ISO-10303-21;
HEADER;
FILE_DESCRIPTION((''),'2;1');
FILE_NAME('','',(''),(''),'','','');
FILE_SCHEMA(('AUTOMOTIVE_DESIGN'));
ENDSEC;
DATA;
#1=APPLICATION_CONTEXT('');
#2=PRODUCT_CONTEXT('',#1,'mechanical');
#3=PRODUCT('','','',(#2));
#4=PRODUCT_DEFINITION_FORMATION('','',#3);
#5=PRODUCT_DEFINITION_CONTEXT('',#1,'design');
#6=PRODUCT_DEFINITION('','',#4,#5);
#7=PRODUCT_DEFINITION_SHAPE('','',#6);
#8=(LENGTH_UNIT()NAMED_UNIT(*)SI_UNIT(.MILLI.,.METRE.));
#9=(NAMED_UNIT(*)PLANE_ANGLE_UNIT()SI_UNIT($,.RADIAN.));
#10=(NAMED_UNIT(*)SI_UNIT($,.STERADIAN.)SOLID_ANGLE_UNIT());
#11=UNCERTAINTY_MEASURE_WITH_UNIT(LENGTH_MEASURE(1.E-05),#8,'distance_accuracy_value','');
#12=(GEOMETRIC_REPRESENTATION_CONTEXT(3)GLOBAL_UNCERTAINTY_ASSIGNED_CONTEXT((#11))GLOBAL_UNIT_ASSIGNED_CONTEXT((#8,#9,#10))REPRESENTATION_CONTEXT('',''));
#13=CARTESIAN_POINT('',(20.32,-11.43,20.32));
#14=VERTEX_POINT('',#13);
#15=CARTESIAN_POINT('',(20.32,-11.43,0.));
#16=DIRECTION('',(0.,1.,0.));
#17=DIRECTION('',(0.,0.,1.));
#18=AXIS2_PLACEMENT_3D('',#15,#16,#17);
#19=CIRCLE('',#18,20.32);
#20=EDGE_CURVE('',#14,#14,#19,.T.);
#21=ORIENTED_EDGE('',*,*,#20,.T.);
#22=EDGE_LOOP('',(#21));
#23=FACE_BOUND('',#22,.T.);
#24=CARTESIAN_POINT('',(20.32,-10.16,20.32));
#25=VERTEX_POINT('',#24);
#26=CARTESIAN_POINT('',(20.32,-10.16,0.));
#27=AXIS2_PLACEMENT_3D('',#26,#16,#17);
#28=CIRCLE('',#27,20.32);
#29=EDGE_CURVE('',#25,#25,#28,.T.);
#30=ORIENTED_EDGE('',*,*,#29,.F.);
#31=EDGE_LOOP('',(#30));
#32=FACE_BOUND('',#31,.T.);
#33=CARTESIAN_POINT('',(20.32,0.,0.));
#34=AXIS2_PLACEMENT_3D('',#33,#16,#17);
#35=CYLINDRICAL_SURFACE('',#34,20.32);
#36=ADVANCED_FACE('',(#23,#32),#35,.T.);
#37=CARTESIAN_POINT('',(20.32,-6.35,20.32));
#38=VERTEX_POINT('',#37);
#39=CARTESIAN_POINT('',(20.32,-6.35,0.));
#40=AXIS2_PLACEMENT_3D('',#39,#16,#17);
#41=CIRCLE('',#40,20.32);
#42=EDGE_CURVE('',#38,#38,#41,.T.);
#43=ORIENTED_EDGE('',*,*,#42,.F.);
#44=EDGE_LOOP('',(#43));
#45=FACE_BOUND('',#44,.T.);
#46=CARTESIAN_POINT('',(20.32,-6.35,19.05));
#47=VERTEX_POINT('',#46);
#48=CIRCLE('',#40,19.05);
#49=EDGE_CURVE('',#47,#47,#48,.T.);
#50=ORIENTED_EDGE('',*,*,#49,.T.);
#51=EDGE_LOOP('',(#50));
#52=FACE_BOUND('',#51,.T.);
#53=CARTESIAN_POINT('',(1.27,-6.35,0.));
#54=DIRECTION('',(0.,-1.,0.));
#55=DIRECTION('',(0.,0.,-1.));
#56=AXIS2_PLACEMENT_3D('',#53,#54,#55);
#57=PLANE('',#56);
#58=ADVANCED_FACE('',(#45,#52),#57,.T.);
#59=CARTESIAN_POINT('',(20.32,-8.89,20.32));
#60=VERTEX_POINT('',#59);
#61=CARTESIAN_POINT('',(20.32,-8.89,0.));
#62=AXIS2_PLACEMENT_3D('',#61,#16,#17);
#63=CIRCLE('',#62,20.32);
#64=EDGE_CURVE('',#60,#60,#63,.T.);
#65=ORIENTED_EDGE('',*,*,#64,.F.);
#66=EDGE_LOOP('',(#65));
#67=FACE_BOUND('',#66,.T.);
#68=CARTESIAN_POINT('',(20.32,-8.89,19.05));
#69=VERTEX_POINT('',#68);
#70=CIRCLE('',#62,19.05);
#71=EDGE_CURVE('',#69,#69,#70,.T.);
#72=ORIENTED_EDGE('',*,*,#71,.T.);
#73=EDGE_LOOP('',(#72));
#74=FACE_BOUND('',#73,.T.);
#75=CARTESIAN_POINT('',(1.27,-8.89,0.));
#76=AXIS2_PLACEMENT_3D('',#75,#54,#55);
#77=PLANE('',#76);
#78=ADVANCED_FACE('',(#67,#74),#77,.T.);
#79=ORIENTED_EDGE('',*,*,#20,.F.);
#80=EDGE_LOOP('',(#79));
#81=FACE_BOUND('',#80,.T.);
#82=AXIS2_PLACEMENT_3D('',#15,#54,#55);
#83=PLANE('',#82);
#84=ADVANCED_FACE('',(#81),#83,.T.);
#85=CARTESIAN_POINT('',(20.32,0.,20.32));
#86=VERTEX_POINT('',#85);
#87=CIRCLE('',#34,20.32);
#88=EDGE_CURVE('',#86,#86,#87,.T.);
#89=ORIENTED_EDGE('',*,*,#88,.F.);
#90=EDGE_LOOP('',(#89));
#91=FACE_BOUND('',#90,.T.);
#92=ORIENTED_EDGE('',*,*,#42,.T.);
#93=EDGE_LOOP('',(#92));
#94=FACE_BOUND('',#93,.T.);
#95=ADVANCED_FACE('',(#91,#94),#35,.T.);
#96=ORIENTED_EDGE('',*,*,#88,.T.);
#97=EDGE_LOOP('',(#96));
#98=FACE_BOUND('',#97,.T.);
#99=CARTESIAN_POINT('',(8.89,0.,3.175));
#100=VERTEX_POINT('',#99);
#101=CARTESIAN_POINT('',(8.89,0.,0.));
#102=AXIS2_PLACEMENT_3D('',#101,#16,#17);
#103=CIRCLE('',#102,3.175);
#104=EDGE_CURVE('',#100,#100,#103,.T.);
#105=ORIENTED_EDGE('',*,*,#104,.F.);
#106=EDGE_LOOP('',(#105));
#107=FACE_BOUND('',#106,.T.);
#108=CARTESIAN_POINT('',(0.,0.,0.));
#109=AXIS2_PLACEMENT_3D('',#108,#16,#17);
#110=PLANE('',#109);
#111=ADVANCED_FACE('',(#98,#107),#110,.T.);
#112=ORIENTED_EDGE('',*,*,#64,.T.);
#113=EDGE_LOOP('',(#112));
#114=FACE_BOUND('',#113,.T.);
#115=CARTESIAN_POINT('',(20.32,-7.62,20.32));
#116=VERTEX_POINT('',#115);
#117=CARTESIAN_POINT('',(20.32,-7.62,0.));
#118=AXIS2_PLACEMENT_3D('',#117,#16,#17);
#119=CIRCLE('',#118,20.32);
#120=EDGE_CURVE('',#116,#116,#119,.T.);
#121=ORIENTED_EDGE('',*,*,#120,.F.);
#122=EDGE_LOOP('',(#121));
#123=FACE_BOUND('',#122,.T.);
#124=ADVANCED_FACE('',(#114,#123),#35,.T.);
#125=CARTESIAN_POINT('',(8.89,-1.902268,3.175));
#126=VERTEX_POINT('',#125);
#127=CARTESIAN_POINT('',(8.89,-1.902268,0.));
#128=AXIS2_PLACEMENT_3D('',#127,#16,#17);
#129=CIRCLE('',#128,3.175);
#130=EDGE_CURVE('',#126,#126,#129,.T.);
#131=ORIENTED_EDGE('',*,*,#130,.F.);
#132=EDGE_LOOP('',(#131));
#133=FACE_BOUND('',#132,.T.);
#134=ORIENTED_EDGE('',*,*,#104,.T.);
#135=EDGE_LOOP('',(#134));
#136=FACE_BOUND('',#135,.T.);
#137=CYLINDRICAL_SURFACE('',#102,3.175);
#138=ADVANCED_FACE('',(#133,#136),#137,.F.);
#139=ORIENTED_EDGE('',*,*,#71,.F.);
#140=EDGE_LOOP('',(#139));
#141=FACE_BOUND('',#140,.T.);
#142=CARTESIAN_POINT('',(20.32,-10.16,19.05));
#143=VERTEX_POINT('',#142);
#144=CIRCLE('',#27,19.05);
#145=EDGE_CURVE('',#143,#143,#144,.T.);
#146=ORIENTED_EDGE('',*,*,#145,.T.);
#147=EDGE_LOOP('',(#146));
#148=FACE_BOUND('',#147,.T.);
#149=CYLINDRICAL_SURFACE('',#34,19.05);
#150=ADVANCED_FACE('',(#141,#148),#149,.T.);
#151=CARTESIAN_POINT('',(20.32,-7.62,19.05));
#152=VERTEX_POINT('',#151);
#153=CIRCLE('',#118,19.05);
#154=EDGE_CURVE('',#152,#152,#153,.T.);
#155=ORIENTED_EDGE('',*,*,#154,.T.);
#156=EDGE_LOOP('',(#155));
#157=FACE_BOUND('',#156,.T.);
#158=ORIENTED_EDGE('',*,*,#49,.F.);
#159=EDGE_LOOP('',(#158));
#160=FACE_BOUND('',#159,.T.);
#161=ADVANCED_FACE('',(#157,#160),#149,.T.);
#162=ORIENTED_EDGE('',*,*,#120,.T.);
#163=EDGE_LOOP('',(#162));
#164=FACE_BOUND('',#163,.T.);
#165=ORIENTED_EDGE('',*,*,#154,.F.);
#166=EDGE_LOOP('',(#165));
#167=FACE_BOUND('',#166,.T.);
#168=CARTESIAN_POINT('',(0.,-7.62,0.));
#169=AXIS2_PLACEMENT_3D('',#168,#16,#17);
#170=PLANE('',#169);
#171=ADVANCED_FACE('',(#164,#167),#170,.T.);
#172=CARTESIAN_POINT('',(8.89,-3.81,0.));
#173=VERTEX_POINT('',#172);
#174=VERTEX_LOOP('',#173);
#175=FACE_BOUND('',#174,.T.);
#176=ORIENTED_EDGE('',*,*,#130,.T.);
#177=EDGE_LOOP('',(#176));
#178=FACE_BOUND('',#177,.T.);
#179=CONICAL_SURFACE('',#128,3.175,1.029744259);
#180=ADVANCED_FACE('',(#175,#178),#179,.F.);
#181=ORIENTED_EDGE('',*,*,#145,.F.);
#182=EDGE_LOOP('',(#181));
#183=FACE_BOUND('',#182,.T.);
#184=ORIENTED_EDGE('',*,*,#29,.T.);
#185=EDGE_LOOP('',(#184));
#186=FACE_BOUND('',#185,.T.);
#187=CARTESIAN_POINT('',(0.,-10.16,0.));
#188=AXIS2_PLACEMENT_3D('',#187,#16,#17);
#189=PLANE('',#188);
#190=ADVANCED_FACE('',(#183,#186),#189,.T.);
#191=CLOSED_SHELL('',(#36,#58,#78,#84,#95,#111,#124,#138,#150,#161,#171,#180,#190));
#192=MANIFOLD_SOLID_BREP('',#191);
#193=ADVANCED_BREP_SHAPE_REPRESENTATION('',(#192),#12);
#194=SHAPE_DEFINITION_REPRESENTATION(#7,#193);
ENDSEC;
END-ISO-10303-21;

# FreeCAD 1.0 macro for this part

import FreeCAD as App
import Part
import Sketcher
from FreeCAD import Vector
Q = App.Units.Quantity


def add_polygon(sketch, points):
    """Adds a closed chain of lines whose ends are joined by coincident constraints."""
    first, n = sketch.GeometryCount, len(points)
    for a, b in zip(points, points[1:] + points[:1]):
        sketch.addGeometry(Part.LineSegment(App.Vector(*a, 0), App.Vector(*b, 0)), False)
    for i in range(n):
        sketch.addConstraint(Sketcher.Constraint("Coincident", first + i, 2, first + (i + 1) % n, 1))

doc = App.newDocument("Part")
body = doc.addObject("PartDesign::Body", "Body")

sketch1 = body.newObject("Sketcher::SketchObject", "Sketch")
sketch1.AttachmentSupport = (doc.getObject("XY_Plane"), [""])
sketch1.MapMode = "FlatFace"
add_polygon(sketch1, [(20.32, -11.43), (20.32, 0), (0, 0), (0, -6.35), (1.27, -6.35), (1.27, -7.62), (0, -7.62), (0, -8.89), (1.27, -8.89), (1.27, -10.16), (0, -10.16), (0, -11.43)])
sketch1.addGeometry(Part.LineSegment(Vector(20.32, 0, 0), Vector(20.32, -11.43, 0)), True)
sketch1.addConstraint(Sketcher.Constraint("Vertical", 0))
sketch1.addConstraint(Sketcher.Constraint("Horizontal", 1))
sketch1.addConstraint(Sketcher.Constraint("Vertical", 2))
sketch1.addConstraint(Sketcher.Constraint("Horizontal", 3))
sketch1.addConstraint(Sketcher.Constraint("Vertical", 4))
sketch1.addConstraint(Sketcher.Constraint("Horizontal", 5))
sketch1.addConstraint(Sketcher.Constraint("Vertical", 6))
sketch1.addConstraint(Sketcher.Constraint("Horizontal", 7))
sketch1.addConstraint(Sketcher.Constraint("Vertical", 8))
sketch1.addConstraint(Sketcher.Constraint("Horizontal", 9))
sketch1.addConstraint(Sketcher.Constraint("Vertical", 10))
sketch1.addConstraint(Sketcher.Constraint("Horizontal", 11))
sketch1.addConstraint(Sketcher.Constraint("Vertical", 12))
sketch1.addConstraint(Sketcher.Constraint("Coincident", 1, 2, -1, 1))
sketch1.addConstraint(Sketcher.Constraint("Coincident", 12, 1, 0, 2))
sketch1.addConstraint(Sketcher.Constraint("PointOnObject", 5, 2, -2))
sketch1.addConstraint(Sketcher.Constraint("PointOnObject", 9, 2, -2))
sketch1.addConstraint(Sketcher.Constraint("Horizontal", 10, 2, 12, 2))
sketch1.addConstraint(Sketcher.Constraint("Vertical", 4, 2, 7, 2))
sketch1.addConstraint(Sketcher.Constraint("Equal", 9, 4))
sketch1.addConstraint(Sketcher.Constraint("Equal", 4, 6))
sketch1.addConstraint(Sketcher.Constraint("Equal", 6, 8))
sketch1.addConstraint(Sketcher.Constraint("Equal", 8, 10))
sketch1.addConstraint(Sketcher.Constraint("DistanceX", 1, 2, 1, 1, Q("0.8 in")))
sketch1.addConstraint(Sketcher.Constraint("DistanceX", 3, 1, 3, 2, Q("0.05 in")))
sketch1.addConstraint(Sketcher.Constraint("DistanceY", 0, 1, 0, 2, Q("0.45 in")))
revolution = body.newObject("PartDesign::Revolution", "Revolution")
revolution.Profile = sketch1
revolution.ReferenceAxis = (sketch1, ["Axis0"])
revolution.Angle = 360

sketch2 = body.newObject("Sketcher::SketchObject", "Sketch001")
sketch2.AttachmentSupport = (doc.getObject("XZ_Plane"), [""])
sketch2.MapMode = "FlatFace"
sketch2.addGeometry(Part.Circle(Vector(8.89, 0, 0), Vector(0, 0, 1), 3.175), False)
sketch2.addConstraint(Sketcher.Constraint("PointOnObject", 0, 3, -1))
sketch2.addConstraint(Sketcher.Constraint("Diameter", 0, Q("0.25 in")))
sketch2.addConstraint(Sketcher.Constraint("DistanceX", -1, 1, 0, 3, Q("0.35 in")))
doc.recompute()
hole = body.newObject("PartDesign::Hole", "Hole")
hole.Profile = sketch2
hole.ThreadType = "None"
hole.Diameter = Q("0.25 in")
hole.DepthType = "Dimension"
hole.Depth = 1.902268
hole.DrillPoint = "Angled"
hole.DrillPointAngle = 118
hole.Reversed = True

doc.recompute()
